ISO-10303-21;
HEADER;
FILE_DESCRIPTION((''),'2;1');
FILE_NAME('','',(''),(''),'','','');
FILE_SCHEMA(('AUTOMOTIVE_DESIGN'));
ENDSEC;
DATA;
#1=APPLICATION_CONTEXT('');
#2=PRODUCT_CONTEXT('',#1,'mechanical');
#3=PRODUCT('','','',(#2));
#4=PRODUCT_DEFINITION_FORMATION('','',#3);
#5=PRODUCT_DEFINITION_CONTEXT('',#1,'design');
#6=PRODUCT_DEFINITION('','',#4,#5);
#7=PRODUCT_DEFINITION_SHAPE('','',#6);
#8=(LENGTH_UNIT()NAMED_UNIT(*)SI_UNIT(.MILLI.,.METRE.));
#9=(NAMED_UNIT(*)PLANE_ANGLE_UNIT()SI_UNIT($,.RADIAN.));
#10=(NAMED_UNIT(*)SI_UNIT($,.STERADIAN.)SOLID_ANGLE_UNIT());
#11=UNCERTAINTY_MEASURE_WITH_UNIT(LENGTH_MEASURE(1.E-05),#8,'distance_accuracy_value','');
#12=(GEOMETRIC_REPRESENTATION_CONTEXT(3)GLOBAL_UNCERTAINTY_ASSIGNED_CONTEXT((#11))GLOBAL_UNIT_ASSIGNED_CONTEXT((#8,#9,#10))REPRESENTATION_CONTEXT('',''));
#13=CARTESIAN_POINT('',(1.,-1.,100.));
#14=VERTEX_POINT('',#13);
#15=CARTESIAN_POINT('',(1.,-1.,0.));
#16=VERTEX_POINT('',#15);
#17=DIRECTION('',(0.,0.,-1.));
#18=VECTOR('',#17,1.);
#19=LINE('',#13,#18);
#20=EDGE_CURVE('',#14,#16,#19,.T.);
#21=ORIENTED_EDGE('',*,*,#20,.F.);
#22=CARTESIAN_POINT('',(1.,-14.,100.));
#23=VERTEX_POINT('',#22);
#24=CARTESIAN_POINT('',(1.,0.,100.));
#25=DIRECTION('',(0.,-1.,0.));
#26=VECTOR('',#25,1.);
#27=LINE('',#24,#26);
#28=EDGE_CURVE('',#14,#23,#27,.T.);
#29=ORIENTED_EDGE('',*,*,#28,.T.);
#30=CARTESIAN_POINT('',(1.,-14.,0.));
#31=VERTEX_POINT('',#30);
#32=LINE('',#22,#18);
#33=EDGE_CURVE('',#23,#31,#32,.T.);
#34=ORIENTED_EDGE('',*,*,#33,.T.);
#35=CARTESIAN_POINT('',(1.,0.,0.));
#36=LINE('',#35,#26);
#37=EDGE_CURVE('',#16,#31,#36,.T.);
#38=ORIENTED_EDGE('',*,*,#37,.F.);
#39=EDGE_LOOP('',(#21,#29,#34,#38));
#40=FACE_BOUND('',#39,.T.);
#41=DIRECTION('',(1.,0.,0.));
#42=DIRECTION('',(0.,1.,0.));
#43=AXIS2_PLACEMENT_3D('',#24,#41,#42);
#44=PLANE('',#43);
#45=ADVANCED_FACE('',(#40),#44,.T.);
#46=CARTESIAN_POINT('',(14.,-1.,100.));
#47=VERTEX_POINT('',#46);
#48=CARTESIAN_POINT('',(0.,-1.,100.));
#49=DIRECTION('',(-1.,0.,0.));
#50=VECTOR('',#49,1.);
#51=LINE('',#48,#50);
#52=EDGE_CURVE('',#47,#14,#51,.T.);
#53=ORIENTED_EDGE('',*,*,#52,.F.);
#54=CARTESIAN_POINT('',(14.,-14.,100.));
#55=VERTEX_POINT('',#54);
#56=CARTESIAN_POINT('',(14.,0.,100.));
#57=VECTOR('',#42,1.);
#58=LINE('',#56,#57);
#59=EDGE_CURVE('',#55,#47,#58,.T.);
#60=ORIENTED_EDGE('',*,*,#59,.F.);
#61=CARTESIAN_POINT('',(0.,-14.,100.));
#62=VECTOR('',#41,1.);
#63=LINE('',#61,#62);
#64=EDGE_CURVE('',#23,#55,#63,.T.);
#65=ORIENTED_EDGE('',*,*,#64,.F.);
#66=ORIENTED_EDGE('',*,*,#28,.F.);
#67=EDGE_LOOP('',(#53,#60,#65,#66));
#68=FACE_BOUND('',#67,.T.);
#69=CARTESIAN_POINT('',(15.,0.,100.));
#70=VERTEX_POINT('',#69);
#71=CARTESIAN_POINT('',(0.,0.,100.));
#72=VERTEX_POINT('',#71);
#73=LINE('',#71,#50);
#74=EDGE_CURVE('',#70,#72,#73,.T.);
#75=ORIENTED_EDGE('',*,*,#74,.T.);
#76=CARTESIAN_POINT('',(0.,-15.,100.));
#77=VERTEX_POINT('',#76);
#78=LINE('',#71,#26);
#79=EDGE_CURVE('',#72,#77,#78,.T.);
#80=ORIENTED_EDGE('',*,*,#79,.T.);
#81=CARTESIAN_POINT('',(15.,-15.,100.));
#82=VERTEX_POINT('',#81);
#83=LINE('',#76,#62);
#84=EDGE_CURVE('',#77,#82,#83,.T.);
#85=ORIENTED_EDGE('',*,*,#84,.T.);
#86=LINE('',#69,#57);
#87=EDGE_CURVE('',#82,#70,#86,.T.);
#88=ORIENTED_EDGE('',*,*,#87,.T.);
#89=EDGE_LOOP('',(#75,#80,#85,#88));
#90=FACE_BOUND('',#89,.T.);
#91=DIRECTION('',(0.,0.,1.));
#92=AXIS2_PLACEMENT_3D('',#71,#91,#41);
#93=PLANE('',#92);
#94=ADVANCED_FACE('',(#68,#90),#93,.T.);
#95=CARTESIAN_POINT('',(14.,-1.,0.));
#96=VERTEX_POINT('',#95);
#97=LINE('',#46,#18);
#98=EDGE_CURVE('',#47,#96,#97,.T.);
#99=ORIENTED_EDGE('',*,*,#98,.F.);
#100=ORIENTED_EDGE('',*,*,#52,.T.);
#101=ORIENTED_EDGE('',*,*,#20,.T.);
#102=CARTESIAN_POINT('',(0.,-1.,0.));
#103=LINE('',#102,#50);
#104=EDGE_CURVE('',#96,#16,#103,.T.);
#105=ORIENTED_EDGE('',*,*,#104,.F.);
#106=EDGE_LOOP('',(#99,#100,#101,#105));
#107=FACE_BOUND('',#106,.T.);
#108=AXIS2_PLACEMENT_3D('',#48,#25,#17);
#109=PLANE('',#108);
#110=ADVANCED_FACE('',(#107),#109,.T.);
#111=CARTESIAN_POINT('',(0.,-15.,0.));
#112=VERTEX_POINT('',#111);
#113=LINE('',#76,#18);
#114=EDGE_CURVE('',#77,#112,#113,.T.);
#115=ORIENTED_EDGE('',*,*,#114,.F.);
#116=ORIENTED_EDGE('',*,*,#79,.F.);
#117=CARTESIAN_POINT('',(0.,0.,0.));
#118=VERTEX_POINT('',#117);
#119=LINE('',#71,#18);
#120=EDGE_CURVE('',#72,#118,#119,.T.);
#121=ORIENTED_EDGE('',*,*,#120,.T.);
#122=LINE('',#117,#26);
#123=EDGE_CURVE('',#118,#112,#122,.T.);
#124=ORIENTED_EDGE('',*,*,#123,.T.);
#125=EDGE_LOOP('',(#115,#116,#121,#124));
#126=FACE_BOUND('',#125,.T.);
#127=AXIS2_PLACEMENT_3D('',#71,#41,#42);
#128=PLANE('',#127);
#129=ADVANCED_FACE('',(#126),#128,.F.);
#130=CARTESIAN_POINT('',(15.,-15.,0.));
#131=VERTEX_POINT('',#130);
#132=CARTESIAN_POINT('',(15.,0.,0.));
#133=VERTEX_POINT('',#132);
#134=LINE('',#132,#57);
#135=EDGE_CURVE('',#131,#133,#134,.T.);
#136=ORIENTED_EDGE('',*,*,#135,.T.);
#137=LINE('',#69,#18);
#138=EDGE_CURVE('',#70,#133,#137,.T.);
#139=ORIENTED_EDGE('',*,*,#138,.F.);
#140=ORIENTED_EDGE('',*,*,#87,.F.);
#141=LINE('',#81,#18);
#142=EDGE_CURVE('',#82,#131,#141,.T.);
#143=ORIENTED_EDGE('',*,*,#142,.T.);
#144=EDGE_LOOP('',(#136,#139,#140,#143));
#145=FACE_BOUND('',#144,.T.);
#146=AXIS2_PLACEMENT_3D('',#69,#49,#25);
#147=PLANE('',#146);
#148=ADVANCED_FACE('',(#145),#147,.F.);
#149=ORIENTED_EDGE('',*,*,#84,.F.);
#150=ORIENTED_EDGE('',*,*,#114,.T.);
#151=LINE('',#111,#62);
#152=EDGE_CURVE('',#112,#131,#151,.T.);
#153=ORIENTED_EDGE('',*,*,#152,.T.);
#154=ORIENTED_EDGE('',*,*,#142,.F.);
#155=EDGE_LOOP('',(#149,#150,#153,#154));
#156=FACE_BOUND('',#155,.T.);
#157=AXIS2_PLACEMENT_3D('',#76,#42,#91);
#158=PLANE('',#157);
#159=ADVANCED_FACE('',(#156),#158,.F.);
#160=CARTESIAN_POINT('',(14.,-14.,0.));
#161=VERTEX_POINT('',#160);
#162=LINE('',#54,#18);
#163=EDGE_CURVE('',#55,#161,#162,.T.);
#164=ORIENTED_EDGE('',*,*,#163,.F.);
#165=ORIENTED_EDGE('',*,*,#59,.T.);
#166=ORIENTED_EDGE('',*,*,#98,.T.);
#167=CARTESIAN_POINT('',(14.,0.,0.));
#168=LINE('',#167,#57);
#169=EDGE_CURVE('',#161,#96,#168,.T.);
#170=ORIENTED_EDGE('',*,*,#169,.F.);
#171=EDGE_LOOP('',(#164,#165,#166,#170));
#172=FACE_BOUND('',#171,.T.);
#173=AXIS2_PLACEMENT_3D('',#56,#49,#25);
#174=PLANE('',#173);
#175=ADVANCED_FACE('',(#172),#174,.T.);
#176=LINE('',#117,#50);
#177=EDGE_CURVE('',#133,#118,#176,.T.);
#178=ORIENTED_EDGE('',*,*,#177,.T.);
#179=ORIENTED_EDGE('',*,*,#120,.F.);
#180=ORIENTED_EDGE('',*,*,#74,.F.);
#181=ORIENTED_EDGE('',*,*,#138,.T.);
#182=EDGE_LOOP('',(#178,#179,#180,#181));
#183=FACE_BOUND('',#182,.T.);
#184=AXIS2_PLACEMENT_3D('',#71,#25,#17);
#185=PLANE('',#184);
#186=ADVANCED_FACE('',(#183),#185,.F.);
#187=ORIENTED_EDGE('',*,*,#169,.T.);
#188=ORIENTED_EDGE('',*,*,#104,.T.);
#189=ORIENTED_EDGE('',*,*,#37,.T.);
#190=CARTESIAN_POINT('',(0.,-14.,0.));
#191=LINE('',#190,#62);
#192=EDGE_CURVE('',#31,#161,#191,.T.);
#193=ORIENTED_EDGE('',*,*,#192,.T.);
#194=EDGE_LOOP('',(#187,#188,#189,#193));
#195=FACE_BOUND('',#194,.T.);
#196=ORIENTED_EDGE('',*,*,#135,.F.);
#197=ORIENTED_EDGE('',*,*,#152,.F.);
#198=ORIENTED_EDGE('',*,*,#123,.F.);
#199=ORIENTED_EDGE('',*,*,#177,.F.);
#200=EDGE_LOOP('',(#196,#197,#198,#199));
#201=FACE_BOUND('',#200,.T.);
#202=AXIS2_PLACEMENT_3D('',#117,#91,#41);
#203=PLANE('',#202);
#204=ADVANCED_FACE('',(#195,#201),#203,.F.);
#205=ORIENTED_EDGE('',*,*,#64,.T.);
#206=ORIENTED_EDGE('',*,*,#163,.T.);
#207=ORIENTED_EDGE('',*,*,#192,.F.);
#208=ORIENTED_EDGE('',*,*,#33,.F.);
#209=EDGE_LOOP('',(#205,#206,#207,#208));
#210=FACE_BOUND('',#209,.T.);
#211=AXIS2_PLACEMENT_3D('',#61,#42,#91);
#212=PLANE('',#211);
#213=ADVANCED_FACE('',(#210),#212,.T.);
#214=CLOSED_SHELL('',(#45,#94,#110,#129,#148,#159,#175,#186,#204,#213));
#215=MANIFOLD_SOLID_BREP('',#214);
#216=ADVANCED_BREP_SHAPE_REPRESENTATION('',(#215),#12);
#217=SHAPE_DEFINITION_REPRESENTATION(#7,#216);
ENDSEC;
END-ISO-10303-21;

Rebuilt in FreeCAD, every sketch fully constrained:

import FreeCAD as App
import Part
import Sketcher
Q = App.Units.Quantity


def add_polygon(sketch, points):
    """Adds a closed chain of lines whose ends are joined by coincident constraints."""
    first, n = sketch.GeometryCount, len(points)
    for a, b in zip(points, points[1:] + points[:1]):
        sketch.addGeometry(Part.LineSegment(App.Vector(*a, 0), App.Vector(*b, 0)), False)
    for i in range(n):
        sketch.addConstraint(Sketcher.Constraint("Coincident", first + i, 2, first + (i + 1) % n, 1))

doc = App.newDocument("Part")
body = doc.addObject("PartDesign::Body", "Body")

sketch1 = body.newObject("Sketcher::SketchObject", "Sketch")
sketch1.AttachmentSupport = (doc.getObject("XY_Plane"), [""])
sketch1.MapMode = "FlatFace"
add_polygon(sketch1, [(0, 0), (0, -15), (15, -15), (15, 0)])
add_polygon(sketch1, [(14, -14), (1, -14), (1, -1), (14, -1)])
sketch1.addConstraint([
    Sketcher.Constraint("Vertical", 0),
    Sketcher.Constraint("Horizontal", 1),
    Sketcher.Constraint("Vertical", 2),
    Sketcher.Constraint("Horizontal", 3),
    Sketcher.Constraint("Horizontal", 4),
    Sketcher.Constraint("Vertical", 5),
    Sketcher.Constraint("Horizontal", 6),
    Sketcher.Constraint("Vertical", 7),
    Sketcher.Constraint("Coincident", 3, 2, -1, 1),
    Sketcher.Constraint("Equal", 3, 0),
    Sketcher.Constraint("Equal", 6, 5),
    Sketcher.Constraint("DistanceX", 1, 1, 1, 2, Q("15 mm")),
    Sketcher.Constraint("DistanceX", 4, 2, 4, 1, Q("13 mm")),
    Sketcher.Constraint("DistanceX", -1, 1, 4, 2, Q("1 mm")),
    Sketcher.Constraint("DistanceY", 4, 2, -1, 1, Q("14 mm")),
])
pad1 = body.newObject("PartDesign::Pad", "Pad")
pad1.Profile = sketch1
pad1.Length = 100

doc.recompute()
